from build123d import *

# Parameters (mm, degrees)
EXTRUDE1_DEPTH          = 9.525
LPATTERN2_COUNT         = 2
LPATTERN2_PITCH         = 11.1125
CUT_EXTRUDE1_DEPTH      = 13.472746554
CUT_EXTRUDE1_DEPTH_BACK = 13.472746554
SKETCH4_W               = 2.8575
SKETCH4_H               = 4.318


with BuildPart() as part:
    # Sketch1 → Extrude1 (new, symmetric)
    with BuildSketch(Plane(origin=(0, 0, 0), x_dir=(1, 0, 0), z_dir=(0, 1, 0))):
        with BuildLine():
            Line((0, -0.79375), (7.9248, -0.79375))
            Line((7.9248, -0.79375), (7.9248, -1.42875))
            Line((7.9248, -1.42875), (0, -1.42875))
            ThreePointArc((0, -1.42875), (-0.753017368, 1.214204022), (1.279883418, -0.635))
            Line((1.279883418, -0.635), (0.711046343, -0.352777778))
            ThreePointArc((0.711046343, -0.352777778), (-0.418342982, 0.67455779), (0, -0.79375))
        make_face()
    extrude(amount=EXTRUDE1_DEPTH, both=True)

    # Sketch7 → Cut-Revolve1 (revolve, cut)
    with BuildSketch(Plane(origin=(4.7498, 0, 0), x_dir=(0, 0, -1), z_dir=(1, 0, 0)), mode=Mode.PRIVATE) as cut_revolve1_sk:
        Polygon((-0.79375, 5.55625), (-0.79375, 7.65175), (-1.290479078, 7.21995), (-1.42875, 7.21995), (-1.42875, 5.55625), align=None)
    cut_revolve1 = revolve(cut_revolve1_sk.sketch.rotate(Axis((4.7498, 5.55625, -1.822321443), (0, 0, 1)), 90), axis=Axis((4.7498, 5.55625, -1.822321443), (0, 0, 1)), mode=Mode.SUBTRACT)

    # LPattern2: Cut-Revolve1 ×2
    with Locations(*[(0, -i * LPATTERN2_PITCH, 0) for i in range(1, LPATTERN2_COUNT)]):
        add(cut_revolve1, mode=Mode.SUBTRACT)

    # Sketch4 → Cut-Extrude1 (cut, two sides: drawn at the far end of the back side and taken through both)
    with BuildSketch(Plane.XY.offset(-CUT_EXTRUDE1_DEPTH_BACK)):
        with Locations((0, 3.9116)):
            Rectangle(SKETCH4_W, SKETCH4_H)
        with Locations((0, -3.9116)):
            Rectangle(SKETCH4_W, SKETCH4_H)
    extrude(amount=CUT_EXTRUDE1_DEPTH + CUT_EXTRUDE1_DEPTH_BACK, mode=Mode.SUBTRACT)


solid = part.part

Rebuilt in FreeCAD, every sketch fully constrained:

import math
import FreeCAD as App
import Part
import Sketcher

V = App.Vector
Q = App.Units.Quantity


def add_polygon(sketch, points):
    """Adds a closed chain of lines whose ends are joined by coincident constraints."""
    first, n = sketch.GeometryCount, len(points)
    for a, b in zip(points, points[1:] + points[:1]):
        sketch.addGeometry(Part.LineSegment(App.Vector(*a, 0), App.Vector(*b, 0)), False)
    for i in range(n):
        sketch.addConstraint(Sketcher.Constraint("Coincident", first + i, 2, first + (i + 1) % n, 1))

doc = App.newDocument("Part")
body = doc.addObject("PartDesign::Body", "Body")

sketch1 = body.newObject("Sketcher::SketchObject", "Sketch")
sketch1.AttachmentSupport = (doc.getObject("XZ_Plane"), [""])
sketch1.MapMode = "FlatFace"
sketch1.addGeometry([
    Part.LineSegment(V(7.9, 0.8, 0), V(0, 0.8, 0)),
    Part.ArcOfCircle(Part.Circle(V(0, 0, 0), V(0, 0, 1), 0.8), math.radians(90), math.radians(386)),
    Part.LineSegment(V(0.7, 0.4, 0), V(1.3, 0.6, 0)),
    Part.ArcOfCircle(Part.Circle(V(0, 0, 0), V(0, 0, 1), 1.4), math.radians(90), math.radians(386)),
    Part.LineSegment(V(0, 1.4, 0), V(7.9, 1.4, 0)),
    Part.LineSegment(V(7.9, 1.4, 0), V(7.9, 0.8, 0)),
], False)
sketch1.addConstraint([
    Sketcher.Constraint("Tangent", 0, 2, 1, 1),
    Sketcher.Constraint("Coincident", 1, 2, 2, 1),
    Sketcher.Constraint("Coincident", 2, 2, 3, 2),
    Sketcher.Constraint("Tangent", 3, 1, 4, 1),
    Sketcher.Constraint("Coincident", 4, 2, 5, 1),
    Sketcher.Constraint("Coincident", 5, 2, 0, 1),
    Sketcher.Constraint("Horizontal", 0),
    Sketcher.Constraint("Horizontal", 4),
    Sketcher.Constraint("Vertical", 5),
    Sketcher.Constraint("Coincident", 1, 3, -1, 1),
    Sketcher.Constraint("Coincident", 3, 3, -1, 1),
    Sketcher.Constraint("Radius", 1, Q("0.03125 in")),
    Sketcher.Constraint("DistanceX", 0, 2, 0, 1, Q("0.312 in")),
    Sketcher.Constraint("DistanceY", 5, 2, 5, 1, Q("0.025 in")),
    Sketcher.Constraint("DistanceY", -1, 1, 2, 2, Q("0.025 in")),
    Sketcher.Constraint("DistanceX", -1, 1, 1, 2, 0.711046),
])
pad1 = body.newObject("PartDesign::Pad", "Pad")
pad1.Profile = sketch1
pad1.Length = Q("0.75 in")
pad1.Midplane = True

sketch2 = body.newObject("Sketcher::SketchObject", "Sketch001")
sketch2.AttachmentSupport = (doc.getObject("YZ_Plane"), [""])
sketch2.MapMode = "FlatFace"
sketch2.AttachmentOffset = App.Placement(V(0, 0, 0.187 * 25.4), App.Rotation())
add_polygon(sketch2, [(5.56, 0.79), (7.65, 0.79), (7.22, 1.29), (7.22, 1.43), (5.56, 1.43)])
sketch2.addGeometry(Part.LineSegment(V(5.56, 0.79, 0), V(5.56, 1.43, 0)), True)
sketch2.addConstraint([
    Sketcher.Constraint("Horizontal", 0),
    Sketcher.Constraint("Vertical", 2),
    Sketcher.Constraint("Horizontal", 3),
    Sketcher.Constraint("Vertical", 4),
    Sketcher.Constraint("Vertical", 5),
    Sketcher.Constraint("Coincident", 5, 1, 4, 2),
    Sketcher.Constraint("Horizontal", 2, 2, 5, 2),
    Sketcher.Constraint("Angle", 1, Q("131 deg")),
    Sketcher.Constraint("DistanceY", 4, 2, 4, 1, Q("0.025 in")),
    Sketcher.Constraint("DistanceX", 0, 1, 0, 2, Q("0.0825 in")),
    Sketcher.Constraint("DistanceX", 3, 2, 3, 1, Q("0.0655 in")),
    Sketcher.Constraint("DistanceY", -1, 1, 0, 2, Q("0.03125 in")),
    Sketcher.Constraint("DistanceX", -1, 1, 3, 2, Q("0.21875 in")),
])
groove = body.newObject("PartDesign::Groove", "Groove")
groove.Profile = sketch2
groove.ReferenceAxis = (sketch2, ["Axis0"])
groove.Angle = 360
doc.recompute()

linearpattern = body.newObject("PartDesign::LinearPattern", "LinearPattern")
linearpattern.Originals = [groove]
linearpattern.Direction = (doc.getObject("Y_Axis"), [""])
linearpattern.Mode = "offset"
linearpattern.Offset = Q("0.4375 in")
linearpattern.Occurrences = 2
linearpattern.Reversed = True
body.Tip = linearpattern

sketch3 = body.newObject("Sketcher::SketchObject", "Sketch002")
sketch3.AttachmentSupport = (doc.getObject("XY_Plane"), [""])
sketch3.MapMode = "FlatFace"
add_polygon(sketch3, [(-1.4, 6.1), (-1.4, 1.8), (1.4, 1.8), (1.4, 6.1)])
add_polygon(sketch3, [(-1.4, -1.8), (-1.4, -6.1), (1.4, -6.1), (1.4, -1.8)])
sketch3.addConstraint([
    Sketcher.Constraint("Vertical", 0),
    Sketcher.Constraint("Horizontal", 1),
    Sketcher.Constraint("Vertical", 2),
    Sketcher.Constraint("Horizontal", 3),
    Sketcher.Constraint("Vertical", 4),
    Sketcher.Constraint("Horizontal", 5),
    Sketcher.Constraint("Vertical", 6),
    Sketcher.Constraint("Horizontal", 7),
    Sketcher.Constraint("Symmetric", 2, 2, 4, 2, -1, 1),
    Sketcher.Constraint("Symmetric", 0, 2, 6, 2, -1, 1),
    Sketcher.Constraint("Vertical", 3, 2, 4, 2),
    Sketcher.Constraint("DistanceY", 0, 2, 0, 1, Q("0.17 in")),
    Sketcher.Constraint("DistanceX", 1, 1, 1, 2, Q("0.1125 in")),
    Sketcher.Constraint("DistanceY", -1, 1, 0, 2, Q("0.069 in")),
])
pocket1 = body.newObject("PartDesign::Pocket", "Pocket")
pocket1.Profile = sketch3
pocket1.Type = "ThroughAll"
pocket1.Midplane = True

doc.recompute()
